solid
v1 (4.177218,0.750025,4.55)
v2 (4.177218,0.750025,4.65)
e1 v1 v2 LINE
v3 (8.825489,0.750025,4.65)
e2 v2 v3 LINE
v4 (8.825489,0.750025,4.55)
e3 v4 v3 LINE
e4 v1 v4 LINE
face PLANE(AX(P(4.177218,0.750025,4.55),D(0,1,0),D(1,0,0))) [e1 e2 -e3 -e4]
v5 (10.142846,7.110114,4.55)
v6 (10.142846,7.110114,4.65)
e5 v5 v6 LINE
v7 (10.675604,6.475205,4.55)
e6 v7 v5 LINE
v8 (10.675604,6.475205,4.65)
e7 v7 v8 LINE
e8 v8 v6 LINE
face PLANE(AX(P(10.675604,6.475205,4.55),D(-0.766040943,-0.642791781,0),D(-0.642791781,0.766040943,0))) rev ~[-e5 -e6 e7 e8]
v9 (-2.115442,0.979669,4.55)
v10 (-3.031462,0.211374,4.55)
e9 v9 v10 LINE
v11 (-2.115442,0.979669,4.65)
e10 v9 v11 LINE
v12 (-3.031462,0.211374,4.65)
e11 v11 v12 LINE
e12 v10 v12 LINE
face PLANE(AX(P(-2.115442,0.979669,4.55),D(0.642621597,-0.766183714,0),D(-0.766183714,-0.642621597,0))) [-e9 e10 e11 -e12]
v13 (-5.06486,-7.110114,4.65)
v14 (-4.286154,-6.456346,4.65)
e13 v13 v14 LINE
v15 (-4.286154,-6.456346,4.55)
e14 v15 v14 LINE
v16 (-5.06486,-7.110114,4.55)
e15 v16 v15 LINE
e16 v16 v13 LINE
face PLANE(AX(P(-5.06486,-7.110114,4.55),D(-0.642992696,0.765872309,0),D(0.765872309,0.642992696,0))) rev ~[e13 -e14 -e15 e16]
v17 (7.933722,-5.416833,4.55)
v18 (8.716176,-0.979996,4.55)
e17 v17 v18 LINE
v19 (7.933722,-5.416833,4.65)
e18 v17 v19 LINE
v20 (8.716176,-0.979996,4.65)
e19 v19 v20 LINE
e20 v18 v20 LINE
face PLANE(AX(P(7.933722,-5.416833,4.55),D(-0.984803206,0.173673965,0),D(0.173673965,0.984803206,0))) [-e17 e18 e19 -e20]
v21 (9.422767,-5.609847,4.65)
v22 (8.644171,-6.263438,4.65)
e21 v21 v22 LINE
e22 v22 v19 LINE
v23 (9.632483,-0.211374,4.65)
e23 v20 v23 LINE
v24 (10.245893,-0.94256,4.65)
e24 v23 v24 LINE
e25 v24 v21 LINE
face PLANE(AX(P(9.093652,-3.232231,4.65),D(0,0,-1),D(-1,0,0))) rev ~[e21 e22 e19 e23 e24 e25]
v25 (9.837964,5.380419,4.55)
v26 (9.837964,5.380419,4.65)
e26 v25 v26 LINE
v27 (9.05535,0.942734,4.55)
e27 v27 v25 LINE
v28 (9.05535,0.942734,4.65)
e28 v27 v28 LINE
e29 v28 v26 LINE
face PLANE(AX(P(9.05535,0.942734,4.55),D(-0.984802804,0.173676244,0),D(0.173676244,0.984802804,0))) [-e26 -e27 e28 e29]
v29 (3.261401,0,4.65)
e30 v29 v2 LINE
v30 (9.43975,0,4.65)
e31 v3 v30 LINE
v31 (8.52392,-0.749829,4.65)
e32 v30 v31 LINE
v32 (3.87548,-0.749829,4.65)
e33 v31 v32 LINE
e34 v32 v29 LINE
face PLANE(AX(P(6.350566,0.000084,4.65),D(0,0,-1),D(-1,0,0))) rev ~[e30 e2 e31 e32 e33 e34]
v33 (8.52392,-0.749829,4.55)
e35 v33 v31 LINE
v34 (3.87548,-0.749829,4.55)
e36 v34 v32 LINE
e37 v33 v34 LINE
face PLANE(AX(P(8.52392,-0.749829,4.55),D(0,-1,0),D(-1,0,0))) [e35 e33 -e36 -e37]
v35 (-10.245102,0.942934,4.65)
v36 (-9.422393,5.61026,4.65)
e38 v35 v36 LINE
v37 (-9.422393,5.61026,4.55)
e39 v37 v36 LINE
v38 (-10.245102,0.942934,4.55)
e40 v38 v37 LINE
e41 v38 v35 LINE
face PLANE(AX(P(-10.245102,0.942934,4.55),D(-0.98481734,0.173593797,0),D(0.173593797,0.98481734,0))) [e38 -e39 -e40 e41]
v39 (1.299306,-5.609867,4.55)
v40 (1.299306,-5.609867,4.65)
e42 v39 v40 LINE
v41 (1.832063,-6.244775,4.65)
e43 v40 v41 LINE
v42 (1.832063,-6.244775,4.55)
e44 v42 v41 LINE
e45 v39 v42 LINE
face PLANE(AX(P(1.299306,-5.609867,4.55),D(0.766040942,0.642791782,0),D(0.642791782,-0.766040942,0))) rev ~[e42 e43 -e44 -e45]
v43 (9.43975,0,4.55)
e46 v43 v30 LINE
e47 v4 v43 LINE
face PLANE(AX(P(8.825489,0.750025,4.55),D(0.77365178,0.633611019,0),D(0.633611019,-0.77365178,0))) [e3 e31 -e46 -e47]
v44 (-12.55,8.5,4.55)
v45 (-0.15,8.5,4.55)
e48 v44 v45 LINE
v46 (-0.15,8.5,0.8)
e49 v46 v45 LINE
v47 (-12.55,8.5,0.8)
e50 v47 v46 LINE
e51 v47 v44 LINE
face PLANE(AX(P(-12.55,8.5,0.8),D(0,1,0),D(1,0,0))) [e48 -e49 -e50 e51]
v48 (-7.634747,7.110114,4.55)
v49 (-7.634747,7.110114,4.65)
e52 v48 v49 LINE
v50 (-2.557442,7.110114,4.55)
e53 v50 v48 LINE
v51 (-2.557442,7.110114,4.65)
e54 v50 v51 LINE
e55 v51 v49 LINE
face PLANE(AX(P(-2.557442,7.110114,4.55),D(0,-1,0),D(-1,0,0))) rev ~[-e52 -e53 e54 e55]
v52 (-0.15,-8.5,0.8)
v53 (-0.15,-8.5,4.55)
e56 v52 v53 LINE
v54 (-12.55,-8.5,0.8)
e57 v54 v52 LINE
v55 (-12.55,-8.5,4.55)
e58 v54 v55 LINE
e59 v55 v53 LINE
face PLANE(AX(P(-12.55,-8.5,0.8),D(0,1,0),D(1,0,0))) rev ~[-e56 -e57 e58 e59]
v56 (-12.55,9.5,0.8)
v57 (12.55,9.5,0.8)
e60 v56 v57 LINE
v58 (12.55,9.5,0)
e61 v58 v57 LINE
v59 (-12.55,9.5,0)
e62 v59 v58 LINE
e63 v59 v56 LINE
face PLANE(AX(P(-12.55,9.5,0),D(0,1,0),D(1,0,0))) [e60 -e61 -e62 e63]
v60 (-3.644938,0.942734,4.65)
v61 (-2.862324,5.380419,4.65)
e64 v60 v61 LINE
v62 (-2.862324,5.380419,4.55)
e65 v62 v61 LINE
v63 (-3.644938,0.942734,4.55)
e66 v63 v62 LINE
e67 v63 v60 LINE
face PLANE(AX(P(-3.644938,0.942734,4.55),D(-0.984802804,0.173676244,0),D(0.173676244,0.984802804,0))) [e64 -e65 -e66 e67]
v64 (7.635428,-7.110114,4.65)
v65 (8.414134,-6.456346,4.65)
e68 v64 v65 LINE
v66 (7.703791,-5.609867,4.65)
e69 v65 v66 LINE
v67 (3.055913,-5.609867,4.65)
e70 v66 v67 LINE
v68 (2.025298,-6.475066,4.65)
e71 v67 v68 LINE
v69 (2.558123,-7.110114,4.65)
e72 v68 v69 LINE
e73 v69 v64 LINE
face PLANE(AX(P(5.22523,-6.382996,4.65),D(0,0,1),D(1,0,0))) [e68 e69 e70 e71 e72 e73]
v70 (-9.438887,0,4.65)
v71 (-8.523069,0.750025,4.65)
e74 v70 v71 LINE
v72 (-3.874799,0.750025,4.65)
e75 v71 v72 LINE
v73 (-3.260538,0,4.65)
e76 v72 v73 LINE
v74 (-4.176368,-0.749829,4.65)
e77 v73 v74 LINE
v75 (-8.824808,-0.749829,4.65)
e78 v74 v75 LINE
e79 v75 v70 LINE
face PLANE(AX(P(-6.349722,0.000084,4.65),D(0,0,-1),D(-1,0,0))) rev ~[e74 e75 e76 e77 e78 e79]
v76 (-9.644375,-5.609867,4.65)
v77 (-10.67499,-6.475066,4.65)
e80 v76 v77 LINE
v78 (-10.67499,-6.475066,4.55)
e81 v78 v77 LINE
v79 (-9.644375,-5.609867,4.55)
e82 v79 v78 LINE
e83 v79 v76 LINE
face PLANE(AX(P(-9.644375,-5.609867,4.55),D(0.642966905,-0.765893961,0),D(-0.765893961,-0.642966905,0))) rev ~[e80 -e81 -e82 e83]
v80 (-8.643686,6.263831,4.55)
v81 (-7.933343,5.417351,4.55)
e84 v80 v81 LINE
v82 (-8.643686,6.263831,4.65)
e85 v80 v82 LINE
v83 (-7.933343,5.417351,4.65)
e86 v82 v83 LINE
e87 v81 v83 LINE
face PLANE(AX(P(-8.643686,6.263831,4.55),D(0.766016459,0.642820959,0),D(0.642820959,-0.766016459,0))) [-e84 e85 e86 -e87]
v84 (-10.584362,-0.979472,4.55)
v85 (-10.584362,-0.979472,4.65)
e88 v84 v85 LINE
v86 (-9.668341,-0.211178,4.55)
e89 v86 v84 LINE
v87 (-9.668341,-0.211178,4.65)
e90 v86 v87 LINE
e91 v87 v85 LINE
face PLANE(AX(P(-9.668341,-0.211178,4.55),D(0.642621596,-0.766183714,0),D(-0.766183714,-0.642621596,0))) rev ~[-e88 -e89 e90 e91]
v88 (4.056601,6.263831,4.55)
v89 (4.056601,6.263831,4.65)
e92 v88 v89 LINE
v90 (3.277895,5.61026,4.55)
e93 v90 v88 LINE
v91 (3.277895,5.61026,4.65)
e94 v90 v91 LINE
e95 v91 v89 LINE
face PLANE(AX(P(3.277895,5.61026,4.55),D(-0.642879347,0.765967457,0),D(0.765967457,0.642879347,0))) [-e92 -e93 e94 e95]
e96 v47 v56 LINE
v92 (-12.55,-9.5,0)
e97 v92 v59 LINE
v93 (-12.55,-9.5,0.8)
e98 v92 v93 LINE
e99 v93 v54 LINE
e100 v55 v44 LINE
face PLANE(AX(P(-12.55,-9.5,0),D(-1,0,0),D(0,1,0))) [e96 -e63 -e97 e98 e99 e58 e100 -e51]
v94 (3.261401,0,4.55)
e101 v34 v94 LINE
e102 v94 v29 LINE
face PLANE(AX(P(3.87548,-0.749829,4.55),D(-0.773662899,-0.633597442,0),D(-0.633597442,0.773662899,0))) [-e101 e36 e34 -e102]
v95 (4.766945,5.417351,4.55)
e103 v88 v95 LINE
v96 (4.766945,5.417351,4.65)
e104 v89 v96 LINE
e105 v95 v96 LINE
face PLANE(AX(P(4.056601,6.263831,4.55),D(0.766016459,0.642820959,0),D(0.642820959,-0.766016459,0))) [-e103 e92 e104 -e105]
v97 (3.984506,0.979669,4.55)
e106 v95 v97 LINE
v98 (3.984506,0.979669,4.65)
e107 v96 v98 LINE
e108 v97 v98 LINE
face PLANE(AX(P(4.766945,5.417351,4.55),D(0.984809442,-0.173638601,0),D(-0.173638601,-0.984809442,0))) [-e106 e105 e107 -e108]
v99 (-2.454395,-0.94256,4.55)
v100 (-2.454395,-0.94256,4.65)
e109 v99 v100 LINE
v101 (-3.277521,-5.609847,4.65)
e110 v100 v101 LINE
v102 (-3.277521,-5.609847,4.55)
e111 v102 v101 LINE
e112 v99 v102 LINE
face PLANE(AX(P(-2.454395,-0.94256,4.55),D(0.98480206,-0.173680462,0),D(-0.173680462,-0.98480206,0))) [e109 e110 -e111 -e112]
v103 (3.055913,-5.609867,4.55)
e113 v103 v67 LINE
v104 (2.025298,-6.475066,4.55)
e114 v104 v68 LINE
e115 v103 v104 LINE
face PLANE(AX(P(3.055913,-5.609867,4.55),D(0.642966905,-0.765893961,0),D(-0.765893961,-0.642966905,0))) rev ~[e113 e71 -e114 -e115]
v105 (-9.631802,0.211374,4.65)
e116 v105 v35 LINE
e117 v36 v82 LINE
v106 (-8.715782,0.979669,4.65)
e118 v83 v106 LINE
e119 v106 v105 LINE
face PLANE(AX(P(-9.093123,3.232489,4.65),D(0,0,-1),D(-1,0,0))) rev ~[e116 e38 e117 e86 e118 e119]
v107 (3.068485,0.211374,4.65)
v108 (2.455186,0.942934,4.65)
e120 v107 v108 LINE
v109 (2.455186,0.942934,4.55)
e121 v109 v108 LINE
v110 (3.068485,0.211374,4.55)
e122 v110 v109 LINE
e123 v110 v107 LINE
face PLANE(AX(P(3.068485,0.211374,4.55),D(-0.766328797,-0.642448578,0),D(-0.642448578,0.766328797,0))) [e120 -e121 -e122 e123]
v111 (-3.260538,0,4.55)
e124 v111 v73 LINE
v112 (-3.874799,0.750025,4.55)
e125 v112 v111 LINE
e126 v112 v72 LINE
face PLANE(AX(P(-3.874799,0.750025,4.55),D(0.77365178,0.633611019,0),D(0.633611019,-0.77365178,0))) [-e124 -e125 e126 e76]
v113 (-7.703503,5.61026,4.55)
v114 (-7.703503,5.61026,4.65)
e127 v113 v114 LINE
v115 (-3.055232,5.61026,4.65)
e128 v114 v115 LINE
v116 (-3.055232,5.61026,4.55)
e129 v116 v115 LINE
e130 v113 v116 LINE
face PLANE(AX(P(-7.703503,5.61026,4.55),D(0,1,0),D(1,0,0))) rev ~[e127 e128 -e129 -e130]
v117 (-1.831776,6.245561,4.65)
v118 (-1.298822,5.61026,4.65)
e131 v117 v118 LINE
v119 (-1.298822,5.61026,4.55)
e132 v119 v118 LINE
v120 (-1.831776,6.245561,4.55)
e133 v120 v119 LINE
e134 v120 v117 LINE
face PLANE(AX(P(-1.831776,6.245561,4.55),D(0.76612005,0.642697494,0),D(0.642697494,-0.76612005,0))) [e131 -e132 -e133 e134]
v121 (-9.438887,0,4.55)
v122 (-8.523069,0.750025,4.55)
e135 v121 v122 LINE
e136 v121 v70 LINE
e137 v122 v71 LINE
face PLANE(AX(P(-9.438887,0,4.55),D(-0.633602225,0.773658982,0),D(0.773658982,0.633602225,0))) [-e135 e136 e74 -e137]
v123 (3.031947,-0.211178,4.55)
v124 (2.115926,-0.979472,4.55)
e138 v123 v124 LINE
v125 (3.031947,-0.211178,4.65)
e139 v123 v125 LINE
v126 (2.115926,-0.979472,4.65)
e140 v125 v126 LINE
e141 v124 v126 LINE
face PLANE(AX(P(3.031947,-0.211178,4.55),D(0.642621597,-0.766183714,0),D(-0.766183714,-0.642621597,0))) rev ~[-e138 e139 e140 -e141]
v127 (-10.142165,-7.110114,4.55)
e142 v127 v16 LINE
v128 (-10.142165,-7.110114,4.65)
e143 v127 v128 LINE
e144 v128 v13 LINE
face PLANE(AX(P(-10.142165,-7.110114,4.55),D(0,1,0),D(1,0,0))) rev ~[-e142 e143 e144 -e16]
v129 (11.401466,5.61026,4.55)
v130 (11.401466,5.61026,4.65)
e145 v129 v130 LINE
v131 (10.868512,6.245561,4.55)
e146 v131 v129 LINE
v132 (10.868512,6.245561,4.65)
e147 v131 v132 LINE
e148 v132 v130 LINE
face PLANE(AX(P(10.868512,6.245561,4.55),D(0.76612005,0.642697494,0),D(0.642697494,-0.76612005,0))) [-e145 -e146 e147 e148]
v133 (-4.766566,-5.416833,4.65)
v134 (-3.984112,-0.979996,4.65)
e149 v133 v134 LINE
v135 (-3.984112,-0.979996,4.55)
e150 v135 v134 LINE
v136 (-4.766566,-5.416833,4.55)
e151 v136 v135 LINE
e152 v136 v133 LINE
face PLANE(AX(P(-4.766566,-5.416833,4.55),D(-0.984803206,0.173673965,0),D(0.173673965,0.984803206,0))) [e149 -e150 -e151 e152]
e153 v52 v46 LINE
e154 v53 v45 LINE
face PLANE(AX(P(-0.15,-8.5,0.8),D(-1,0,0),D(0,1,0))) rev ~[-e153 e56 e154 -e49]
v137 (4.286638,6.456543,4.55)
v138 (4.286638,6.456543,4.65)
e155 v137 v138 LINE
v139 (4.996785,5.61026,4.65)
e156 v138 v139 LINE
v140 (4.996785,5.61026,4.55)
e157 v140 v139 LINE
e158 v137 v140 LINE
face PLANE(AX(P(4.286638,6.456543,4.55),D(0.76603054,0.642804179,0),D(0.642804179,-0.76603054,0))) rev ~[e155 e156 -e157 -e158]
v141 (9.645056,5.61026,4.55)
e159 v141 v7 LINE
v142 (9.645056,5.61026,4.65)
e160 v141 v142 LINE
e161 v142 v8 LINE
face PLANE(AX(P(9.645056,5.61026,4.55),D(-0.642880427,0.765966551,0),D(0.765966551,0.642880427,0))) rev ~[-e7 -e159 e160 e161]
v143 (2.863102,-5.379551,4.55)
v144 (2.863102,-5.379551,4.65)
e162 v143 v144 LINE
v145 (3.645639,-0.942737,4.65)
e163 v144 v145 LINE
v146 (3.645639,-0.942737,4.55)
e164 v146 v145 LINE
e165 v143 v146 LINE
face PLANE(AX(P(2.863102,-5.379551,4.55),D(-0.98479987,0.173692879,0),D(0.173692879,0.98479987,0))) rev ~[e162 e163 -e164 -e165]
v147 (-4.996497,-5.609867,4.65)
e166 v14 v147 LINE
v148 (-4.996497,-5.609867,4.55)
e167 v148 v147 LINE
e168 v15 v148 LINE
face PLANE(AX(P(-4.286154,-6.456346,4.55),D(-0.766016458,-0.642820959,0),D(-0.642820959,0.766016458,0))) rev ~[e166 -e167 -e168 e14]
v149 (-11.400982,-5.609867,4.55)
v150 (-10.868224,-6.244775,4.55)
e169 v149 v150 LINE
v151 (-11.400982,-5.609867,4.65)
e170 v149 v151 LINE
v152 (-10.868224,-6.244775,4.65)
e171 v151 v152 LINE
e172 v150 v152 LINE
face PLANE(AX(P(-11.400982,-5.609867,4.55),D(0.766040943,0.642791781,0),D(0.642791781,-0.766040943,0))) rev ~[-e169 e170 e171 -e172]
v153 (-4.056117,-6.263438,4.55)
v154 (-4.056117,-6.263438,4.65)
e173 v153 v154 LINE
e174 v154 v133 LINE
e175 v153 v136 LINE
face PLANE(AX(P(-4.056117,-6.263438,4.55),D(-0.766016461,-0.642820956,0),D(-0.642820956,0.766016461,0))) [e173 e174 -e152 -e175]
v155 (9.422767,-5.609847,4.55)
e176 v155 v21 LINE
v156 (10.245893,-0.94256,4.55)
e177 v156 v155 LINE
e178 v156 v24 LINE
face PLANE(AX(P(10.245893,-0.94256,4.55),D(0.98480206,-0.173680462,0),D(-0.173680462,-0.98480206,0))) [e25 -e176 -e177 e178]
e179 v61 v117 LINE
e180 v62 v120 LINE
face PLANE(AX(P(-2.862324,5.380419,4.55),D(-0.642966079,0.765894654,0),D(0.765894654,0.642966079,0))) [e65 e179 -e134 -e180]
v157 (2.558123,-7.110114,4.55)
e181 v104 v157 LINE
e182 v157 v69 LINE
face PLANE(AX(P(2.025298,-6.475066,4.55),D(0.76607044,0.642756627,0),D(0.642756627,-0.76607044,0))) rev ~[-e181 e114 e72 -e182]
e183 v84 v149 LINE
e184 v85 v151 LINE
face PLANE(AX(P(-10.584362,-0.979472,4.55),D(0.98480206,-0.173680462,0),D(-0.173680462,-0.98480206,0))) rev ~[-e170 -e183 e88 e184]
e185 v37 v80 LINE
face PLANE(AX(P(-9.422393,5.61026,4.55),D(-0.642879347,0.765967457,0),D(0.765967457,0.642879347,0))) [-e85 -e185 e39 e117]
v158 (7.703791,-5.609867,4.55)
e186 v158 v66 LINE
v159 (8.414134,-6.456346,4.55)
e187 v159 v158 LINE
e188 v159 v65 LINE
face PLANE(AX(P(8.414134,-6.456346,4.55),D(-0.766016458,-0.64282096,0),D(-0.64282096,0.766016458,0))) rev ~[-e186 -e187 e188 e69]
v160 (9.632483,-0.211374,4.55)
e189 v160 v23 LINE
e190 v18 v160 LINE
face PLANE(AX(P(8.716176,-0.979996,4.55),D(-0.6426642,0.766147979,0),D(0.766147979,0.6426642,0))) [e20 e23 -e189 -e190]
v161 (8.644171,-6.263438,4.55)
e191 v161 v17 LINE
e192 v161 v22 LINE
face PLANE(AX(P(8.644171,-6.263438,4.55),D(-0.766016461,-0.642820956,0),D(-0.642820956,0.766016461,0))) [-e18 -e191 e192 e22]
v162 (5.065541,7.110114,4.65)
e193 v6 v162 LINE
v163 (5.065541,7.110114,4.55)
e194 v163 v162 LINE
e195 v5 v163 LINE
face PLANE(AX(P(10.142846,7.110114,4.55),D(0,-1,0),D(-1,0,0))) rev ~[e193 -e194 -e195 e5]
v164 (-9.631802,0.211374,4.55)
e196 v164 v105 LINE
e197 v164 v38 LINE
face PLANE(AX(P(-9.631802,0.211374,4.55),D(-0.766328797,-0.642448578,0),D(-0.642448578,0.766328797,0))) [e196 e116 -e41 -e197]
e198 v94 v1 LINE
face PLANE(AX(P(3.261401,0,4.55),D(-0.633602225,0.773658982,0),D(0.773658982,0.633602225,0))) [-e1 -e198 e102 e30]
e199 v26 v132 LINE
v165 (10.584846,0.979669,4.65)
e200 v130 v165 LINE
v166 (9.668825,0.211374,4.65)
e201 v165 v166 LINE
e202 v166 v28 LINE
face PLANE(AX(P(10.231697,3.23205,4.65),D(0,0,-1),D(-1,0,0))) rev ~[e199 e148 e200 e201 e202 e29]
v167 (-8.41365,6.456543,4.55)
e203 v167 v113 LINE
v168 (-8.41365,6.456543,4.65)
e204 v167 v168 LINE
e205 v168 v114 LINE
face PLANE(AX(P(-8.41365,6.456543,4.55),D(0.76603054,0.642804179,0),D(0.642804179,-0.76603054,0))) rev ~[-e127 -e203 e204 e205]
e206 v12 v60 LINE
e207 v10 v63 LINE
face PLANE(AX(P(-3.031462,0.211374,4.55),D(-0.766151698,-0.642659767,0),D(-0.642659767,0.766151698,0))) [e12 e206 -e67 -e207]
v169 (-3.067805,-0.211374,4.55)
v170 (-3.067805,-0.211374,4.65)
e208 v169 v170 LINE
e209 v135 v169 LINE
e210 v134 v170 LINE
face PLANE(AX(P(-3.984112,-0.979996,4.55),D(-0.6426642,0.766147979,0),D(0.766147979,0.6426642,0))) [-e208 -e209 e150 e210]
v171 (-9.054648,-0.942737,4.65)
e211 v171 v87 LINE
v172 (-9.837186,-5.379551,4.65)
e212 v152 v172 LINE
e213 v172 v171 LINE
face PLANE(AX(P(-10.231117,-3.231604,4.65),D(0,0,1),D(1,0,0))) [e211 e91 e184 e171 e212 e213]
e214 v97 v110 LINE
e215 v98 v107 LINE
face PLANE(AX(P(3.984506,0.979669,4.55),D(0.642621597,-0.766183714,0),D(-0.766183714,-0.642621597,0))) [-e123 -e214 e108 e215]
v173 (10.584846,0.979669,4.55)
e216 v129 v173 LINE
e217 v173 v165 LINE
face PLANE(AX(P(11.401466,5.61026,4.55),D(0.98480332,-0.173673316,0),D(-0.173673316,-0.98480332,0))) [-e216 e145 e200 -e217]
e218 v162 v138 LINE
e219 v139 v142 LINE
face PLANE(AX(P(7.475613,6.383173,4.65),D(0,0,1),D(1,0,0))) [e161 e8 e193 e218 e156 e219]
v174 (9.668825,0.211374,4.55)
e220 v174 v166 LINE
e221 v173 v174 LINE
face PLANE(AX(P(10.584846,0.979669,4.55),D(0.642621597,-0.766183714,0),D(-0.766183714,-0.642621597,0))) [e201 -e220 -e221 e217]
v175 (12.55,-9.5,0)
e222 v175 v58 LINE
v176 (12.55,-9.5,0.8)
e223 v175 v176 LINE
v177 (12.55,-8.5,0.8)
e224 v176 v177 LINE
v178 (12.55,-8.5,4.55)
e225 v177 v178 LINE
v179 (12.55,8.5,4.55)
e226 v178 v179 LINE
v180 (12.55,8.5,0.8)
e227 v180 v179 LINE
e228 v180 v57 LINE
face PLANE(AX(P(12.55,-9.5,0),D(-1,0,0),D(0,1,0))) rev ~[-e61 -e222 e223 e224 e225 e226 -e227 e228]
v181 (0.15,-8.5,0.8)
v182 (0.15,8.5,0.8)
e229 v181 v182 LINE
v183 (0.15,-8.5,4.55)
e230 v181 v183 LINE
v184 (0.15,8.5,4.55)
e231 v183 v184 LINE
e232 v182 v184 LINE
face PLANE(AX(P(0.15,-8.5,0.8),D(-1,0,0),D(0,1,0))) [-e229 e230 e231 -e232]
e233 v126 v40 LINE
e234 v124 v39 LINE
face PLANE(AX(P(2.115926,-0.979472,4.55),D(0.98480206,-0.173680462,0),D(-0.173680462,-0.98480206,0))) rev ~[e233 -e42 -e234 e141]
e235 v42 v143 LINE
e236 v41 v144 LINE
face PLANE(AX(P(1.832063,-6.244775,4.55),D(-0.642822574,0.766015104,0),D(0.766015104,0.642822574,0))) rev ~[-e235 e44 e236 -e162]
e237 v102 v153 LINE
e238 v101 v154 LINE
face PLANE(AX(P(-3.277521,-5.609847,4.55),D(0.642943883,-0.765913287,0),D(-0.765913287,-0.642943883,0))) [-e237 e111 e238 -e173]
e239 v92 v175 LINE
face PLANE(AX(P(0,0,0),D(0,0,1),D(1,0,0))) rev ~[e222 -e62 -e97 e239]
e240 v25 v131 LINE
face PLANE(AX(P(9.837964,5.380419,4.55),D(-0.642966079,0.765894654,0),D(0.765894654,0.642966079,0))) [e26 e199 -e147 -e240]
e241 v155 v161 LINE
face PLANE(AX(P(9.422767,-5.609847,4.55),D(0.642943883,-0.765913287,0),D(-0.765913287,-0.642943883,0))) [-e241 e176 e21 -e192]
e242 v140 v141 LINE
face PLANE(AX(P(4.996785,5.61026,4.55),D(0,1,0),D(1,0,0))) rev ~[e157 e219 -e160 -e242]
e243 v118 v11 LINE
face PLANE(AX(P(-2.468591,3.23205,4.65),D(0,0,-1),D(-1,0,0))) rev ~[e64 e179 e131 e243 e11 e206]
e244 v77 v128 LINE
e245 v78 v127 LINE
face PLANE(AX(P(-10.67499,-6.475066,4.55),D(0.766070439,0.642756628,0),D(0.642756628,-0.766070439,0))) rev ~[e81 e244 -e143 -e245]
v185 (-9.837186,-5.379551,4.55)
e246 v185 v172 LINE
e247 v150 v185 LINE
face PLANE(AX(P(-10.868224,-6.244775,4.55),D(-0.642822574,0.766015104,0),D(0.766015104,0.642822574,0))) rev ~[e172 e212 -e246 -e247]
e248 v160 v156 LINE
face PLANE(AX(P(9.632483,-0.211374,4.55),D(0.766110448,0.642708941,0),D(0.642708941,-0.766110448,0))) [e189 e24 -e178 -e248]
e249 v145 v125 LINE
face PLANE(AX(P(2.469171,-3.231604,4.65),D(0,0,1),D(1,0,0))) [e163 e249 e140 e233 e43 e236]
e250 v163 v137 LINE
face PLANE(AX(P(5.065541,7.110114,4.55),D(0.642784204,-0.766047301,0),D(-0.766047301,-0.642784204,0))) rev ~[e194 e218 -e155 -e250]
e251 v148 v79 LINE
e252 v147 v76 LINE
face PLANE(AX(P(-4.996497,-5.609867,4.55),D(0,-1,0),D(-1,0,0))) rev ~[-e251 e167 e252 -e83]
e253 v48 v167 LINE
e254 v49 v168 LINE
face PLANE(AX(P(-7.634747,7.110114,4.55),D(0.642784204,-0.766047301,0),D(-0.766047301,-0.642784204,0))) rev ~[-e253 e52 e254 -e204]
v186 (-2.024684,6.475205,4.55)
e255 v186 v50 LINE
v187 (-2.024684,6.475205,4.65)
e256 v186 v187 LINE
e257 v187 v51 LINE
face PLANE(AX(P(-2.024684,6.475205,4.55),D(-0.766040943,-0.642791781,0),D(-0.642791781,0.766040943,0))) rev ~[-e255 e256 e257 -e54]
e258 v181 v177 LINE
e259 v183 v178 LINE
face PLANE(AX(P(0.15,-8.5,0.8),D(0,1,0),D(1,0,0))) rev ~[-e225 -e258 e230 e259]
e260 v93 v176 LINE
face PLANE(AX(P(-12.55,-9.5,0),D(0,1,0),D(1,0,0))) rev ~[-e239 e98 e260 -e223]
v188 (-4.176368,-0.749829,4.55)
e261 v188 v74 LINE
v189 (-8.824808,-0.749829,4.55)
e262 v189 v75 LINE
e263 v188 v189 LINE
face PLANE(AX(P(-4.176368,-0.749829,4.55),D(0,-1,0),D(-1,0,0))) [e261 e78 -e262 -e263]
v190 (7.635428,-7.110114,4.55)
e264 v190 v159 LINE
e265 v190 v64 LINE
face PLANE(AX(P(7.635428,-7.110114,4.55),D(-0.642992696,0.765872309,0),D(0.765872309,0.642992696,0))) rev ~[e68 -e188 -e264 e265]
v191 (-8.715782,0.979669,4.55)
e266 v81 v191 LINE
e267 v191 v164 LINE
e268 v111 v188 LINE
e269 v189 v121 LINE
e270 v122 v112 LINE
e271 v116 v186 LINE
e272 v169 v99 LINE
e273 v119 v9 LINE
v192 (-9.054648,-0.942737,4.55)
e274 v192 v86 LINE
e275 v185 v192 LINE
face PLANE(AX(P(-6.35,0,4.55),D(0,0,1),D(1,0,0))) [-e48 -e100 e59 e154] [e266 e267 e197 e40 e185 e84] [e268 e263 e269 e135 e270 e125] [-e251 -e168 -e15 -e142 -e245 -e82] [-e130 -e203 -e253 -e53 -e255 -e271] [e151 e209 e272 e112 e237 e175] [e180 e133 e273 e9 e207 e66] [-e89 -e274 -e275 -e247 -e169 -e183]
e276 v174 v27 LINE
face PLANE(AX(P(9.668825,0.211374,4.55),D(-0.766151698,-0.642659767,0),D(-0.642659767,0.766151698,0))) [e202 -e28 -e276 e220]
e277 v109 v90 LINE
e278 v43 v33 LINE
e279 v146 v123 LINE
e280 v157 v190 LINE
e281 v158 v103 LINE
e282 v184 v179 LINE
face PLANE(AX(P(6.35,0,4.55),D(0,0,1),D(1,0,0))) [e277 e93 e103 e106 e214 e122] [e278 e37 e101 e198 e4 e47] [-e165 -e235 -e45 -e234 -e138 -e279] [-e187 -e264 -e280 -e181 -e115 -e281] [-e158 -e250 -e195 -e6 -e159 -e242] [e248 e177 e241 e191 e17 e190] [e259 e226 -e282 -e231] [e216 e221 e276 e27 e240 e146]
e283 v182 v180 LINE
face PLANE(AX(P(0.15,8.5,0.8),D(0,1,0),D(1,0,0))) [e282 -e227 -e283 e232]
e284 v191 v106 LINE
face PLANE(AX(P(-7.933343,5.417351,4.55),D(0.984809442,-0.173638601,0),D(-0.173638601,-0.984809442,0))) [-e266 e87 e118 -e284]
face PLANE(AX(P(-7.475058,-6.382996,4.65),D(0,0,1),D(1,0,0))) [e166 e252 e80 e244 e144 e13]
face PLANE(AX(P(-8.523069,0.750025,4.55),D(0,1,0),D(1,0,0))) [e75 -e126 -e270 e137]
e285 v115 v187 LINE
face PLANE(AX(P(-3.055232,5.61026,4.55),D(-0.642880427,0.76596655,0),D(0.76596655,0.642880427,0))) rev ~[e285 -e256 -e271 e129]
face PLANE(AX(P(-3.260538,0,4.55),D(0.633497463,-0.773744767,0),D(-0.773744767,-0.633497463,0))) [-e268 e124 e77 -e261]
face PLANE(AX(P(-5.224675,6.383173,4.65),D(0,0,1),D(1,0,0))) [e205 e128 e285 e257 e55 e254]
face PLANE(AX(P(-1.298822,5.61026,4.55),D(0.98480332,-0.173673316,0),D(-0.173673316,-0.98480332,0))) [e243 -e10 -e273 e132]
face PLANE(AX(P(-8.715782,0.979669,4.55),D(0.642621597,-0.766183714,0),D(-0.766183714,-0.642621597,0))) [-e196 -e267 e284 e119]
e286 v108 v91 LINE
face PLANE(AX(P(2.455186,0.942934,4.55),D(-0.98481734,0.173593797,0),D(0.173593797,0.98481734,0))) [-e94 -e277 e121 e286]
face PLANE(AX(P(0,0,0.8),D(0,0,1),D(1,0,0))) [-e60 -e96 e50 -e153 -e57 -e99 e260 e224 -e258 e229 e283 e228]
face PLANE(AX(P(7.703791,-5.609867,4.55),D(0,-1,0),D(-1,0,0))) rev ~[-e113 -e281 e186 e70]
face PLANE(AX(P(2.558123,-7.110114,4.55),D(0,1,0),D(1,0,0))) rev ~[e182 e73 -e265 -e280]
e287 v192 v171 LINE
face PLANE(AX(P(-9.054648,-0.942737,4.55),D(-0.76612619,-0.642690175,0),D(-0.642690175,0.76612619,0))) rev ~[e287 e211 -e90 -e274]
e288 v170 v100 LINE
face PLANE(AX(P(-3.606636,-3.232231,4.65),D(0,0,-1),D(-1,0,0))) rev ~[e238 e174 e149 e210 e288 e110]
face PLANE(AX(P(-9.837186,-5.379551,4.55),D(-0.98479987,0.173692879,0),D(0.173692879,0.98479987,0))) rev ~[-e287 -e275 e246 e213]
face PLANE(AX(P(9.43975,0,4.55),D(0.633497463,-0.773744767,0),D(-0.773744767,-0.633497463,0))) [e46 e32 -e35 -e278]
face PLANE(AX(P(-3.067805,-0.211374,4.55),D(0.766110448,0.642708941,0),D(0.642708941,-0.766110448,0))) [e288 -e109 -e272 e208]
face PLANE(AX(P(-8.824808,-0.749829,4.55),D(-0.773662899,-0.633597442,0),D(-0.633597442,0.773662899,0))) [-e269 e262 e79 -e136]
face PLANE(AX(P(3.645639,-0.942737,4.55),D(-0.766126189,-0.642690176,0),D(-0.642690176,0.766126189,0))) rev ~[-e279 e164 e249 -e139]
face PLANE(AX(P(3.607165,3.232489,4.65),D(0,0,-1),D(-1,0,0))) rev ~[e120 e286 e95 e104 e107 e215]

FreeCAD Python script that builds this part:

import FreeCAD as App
import Part
import Sketcher

V = App.Vector
Q = App.Units.Quantity

doc = App.newDocument("Part")
body = doc.addObject("PartDesign::Body", "Body")

# Sketch on XY plane
sketch1 = body.newObject("Sketcher::SketchObject", "Sketch")
sketch1.AttachmentSupport = (doc.getObject("XY_Plane"), [""])
sketch1.MapMode = "FlatFace"
sketch1.addGeometry([
    Part.LineSegment(V(-13, 10, 0), V(-13, -10, 0)),
    Part.LineSegment(V(-13, -10, 0), V(13, -10, 0)),
    Part.LineSegment(V(13, -10, 0), V(13, 10, 0)),
    Part.LineSegment(V(13, 10, 0), V(-13, 10, 0)),
], False)
sketch1.addConstraint([
    Sketcher.Constraint("Coincident", 0, 2, 1, 1),
    Sketcher.Constraint("Coincident", 1, 2, 2, 1),
    Sketcher.Constraint("Coincident", 2, 2, 3, 1),
    Sketcher.Constraint("Coincident", 3, 2, 0, 1),
    Sketcher.Constraint("Vertical", 0),
    Sketcher.Constraint("Horizontal", 1),
    Sketcher.Constraint("Vertical", 2),
    Sketcher.Constraint("Horizontal", 3),
    Sketcher.Constraint("Symmetric", 0, 2, 2, 2, -1, 1),
    Sketcher.Constraint("DistanceY", 0, 2, 0, 1, Q("19 mm")),
    Sketcher.Constraint("DistanceX", 1, 1, 1, 2, Q("25.1 mm")),
])
pad1 = body.newObject("PartDesign::Pad", "Pad")
pad1.Profile = sketch1
pad1.Length = 0.8

# Sketch on XY plane
sketch2 = body.newObject("Sketcher::SketchObject", "Sketch001")
sketch2.AttachmentSupport = (doc.getObject("XY_Plane"), [""])
sketch2.MapMode = "FlatFace"
sketch2.AttachmentOffset = App.Placement(V(0, 0, 0.8), App.Rotation())
sketch2.addGeometry([
    Part.LineSegment(V(-13, 8, 0), V(-13, -8, 0)),  # 0
    Part.LineSegment(V(-13, -8, 0), V(0, -8, 0)),  # 1
    Part.LineSegment(V(0, -8, 0), V(0, 8, 0)),  # 2
    Part.LineSegment(V(0, 8, 0), V(-13, 8, 0)),  # 3
    Part.LineSegment(V(0, 8, 0), V(0, -8, 0)),  # 4
    Part.LineSegment(V(0, -8, 0), V(13, -8, 0)),  # 5
    Part.LineSegment(V(13, -8, 0), V(13, 8, 0)),  # 6
    Part.LineSegment(V(13, 8, 0), V(0, 8, 0)),  # 7
], False)
sketch2.addConstraint([
    Sketcher.Constraint("Coincident", 0, 2, 1, 1),
    Sketcher.Constraint("Coincident", 1, 2, 2, 1),
    Sketcher.Constraint("Coincident", 2, 2, 3, 1),
    Sketcher.Constraint("Coincident", 3, 2, 0, 1),
    Sketcher.Constraint("Coincident", 4, 2, 5, 1),
    Sketcher.Constraint("Coincident", 5, 2, 6, 1),
    Sketcher.Constraint("Coincident", 6, 2, 7, 1),
    Sketcher.Constraint("Coincident", 7, 2, 4, 1),
    Sketcher.Constraint("Vertical", 0),
    Sketcher.Constraint("Horizontal", 1),
    Sketcher.Constraint("Vertical", 2),
    Sketcher.Constraint("Horizontal", 3),
    Sketcher.Constraint("Vertical", 4),
    Sketcher.Constraint("Horizontal", 5),
    Sketcher.Constraint("Vertical", 6),
    Sketcher.Constraint("Horizontal", 7),
    Sketcher.Constraint("Symmetric", 2, 2, 4, 2, -1, 1),
    Sketcher.Constraint("Symmetric", 0, 2, 6, 2, -1, 1),
    Sketcher.Constraint("Horizontal", 1, 2, 4, 2),
    Sketcher.Constraint("DistanceY", 0, 2, 0, 1, Q("17 mm")),
    Sketcher.Constraint("DistanceX", 1, 1, 1, 2, Q("12.4 mm")),
    Sketcher.Constraint("DistanceX", 1, 2, 4, 2, Q("0.3 mm")),
])
pad2 = body.newObject("PartDesign::Pad", "Pad001")
pad2.Profile = sketch2
pad2.Length = 3.75

# Sketch on XY plane
sketch3 = body.newObject("Sketcher::SketchObject", "Sketch002")
sketch3.AttachmentSupport = (doc.getObject("XY_Plane"), [""])
sketch3.MapMode = "FlatFace"
sketch3.AttachmentOffset = App.Placement(V(0, 0, 4.55), App.Rotation())
sketch3.addGeometry([
    Part.LineSegment(V(-2, 6.5, 0), V(-2.6, 7.1, 0)),  # 0
    Part.LineSegment(V(-2.6, 7.1, 0), V(-7.6, 7.1, 0)),  # 1
    Part.LineSegment(V(-7.6, 7.1, 0), V(-8.4, 6.5, 0)),  # 2
    Part.LineSegment(V(-8.4, 6.5, 0), V(-7.7, 5.6, 0)),  # 3
    Part.LineSegment(V(-7.7, 5.6, 0), V(-3.1, 5.6, 0)),  # 4
    Part.LineSegment(V(-3.1, 5.6, 0), V(-2, 6.5, 0)),  # 5
    Part.LineSegment(V(-2.1, 1, 0), V(-1.3, 5.6, 0)),  # 6
    Part.LineSegment(V(-1.3, 5.6, 0), V(-1.8, 6.2, 0)),  # 7
    Part.LineSegment(V(-1.8, 6.2, 0), V(-2.9, 5.4, 0)),  # 8
    Part.LineSegment(V(-2.9, 5.4, 0), V(-3.6, 0.9, 0)),  # 9
    Part.LineSegment(V(-3.6, 0.9, 0), V(-3, 0.2, 0)),  # 10
    Part.LineSegment(V(-3, 0.2, 0), V(-2.1, 1, 0)),  # 11
    Part.LineSegment(V(-8.7, 1, 0), V(-7.9, 5.4, 0)),  # 12
    Part.LineSegment(V(-7.9, 5.4, 0), V(-8.6, 6.3, 0)),  # 13
    Part.LineSegment(V(-8.6, 6.3, 0), V(-9.4, 5.6, 0)),  # 14
    Part.LineSegment(V(-9.4, 5.6, 0), V(-10.2, 0.9, 0)),  # 15
    Part.LineSegment(V(-10.2, 0.9, 0), V(-9.6, 0.2, 0)),  # 16
    Part.LineSegment(V(-9.6, 0.2, 0), V(-8.7, 1, 0)),  # 17
    Part.LineSegment(V(-3.9, 0.8, 0), V(-8.5, 0.8, 0)),  # 18
    Part.LineSegment(V(-8.5, 0.8, 0), V(-9.4, 0, 0)),  # 19
    Part.LineSegment(V(-9.4, 0, 0), V(-8.8, -0.7, 0)),  # 20
    Part.LineSegment(V(-8.8, -0.7, 0), V(-4.2, -0.7, 0)),  # 21
    Part.LineSegment(V(-4.2, -0.7, 0), V(-3.3, 0, 0)),  # 22
    Part.LineSegment(V(-3.3, 0, 0), V(-3.9, 0.8, 0)),  # 23
    Part.LineSegment(V(-3.1, -0.2, 0), V(-4, -1, 0)),  # 24
    Part.LineSegment(V(-4, -1, 0), V(-4.8, -5.4, 0)),  # 25
    Part.LineSegment(V(-4.8, -5.4, 0), V(-4.1, -6.3, 0)),  # 26
    Part.LineSegment(V(-4.1, -6.3, 0), V(-3.3, -5.6, 0)),  # 27
    Part.LineSegment(V(-3.3, -5.6, 0), V(-2.5, -0.9, 0)),  # 28
    Part.LineSegment(V(-2.5, -0.9, 0), V(-3.1, -0.2, 0)),  # 29
    Part.LineSegment(V(-9.1, -0.9, 0), V(-9.7, -0.2, 0)),  # 30
    Part.LineSegment(V(-9.7, -0.2, 0), V(-10.6, -1, 0)),  # 31
    Part.LineSegment(V(-10.6, -1, 0), V(-11.4, -5.6, 0)),  # 32
    Part.LineSegment(V(-11.4, -5.6, 0), V(-10.9, -6.2, 0)),  # 33
    Part.LineSegment(V(-10.9, -6.2, 0), V(-9.8, -5.4, 0)),  # 34
    Part.LineSegment(V(-9.8, -5.4, 0), V(-9.1, -0.9, 0)),  # 35
    Part.LineSegment(V(-5, -5.6, 0), V(-9.6, -5.6, 0)),  # 36
    Part.LineSegment(V(-9.6, -5.6, 0), V(-10.7, -6.5, 0)),  # 37
    Part.LineSegment(V(-10.7, -6.5, 0), V(-10.1, -7.1, 0)),  # 38
    Part.LineSegment(V(-10.1, -7.1, 0), V(-5.1, -7.1, 0)),  # 39
    Part.LineSegment(V(-5.1, -7.1, 0), V(-4.3, -6.5, 0)),  # 40
    Part.LineSegment(V(-4.3, -6.5, 0), V(-5, -5.6, 0)),  # 41
    Part.LineSegment(V(10.7, 6.5, 0), V(10.1, 7.1, 0)),  # 42
    Part.LineSegment(V(10.1, 7.1, 0), V(5.1, 7.1, 0)),  # 43
    Part.LineSegment(V(5.1, 7.1, 0), V(4.3, 6.5, 0)),  # 44
    Part.LineSegment(V(4.3, 6.5, 0), V(5, 5.6, 0)),  # 45
    Part.LineSegment(V(5, 5.6, 0), V(9.6, 5.6, 0)),  # 46
    Part.LineSegment(V(9.6, 5.6, 0), V(10.7, 6.5, 0)),  # 47
    Part.LineSegment(V(10.6, 1, 0), V(11.4, 5.6, 0)),  # 48
    Part.LineSegment(V(11.4, 5.6, 0), V(10.9, 6.2, 0)),  # 49
    Part.LineSegment(V(10.9, 6.2, 0), V(9.8, 5.4, 0)),  # 50
    Part.LineSegment(V(9.8, 5.4, 0), V(9.1, 0.9, 0)),  # 51
    Part.LineSegment(V(9.1, 0.9, 0), V(9.7, 0.2, 0)),  # 52
    Part.LineSegment(V(9.7, 0.2, 0), V(10.6, 1, 0)),  # 53
    Part.LineSegment(V(4, 1, 0), V(4.8, 5.4, 0)),  # 54
    Part.LineSegment(V(4.8, 5.4, 0), V(4.1, 6.3, 0)),  # 55
    Part.LineSegment(V(4.1, 6.3, 0), V(3.3, 5.6, 0)),  # 56
    Part.LineSegment(V(3.3, 5.6, 0), V(2.5, 0.9, 0)),  # 57
    Part.LineSegment(V(2.5, 0.9, 0), V(3.1, 0.2, 0)),  # 58
    Part.LineSegment(V(3.1, 0.2, 0), V(4, 1, 0)),  # 59
    Part.LineSegment(V(8.8, 0.8, 0), V(4.2, 0.8, 0)),  # 60
    Part.LineSegment(V(4.2, 0.8, 0), V(3.3, 0, 0)),  # 61
    Part.LineSegment(V(3.3, 0, 0), V(3.9, -0.7, 0)),  # 62
    Part.LineSegment(V(3.9, -0.7, 0), V(8.5, -0.7, 0)),  # 63
    Part.LineSegment(V(8.5, -0.7, 0), V(9.4, 0, 0)),  # 64
    Part.LineSegment(V(9.4, 0, 0), V(8.8, 0.8, 0)),  # 65
    Part.LineSegment(V(9.6, -0.2, 0), V(8.7, -1, 0)),  # 66
    Part.LineSegment(V(8.7, -1, 0), V(7.9, -5.4, 0)),  # 67
    Part.LineSegment(V(7.9, -5.4, 0), V(8.6, -6.3, 0)),  # 68
    Part.LineSegment(V(8.6, -6.3, 0), V(9.4, -5.6, 0)),  # 69
    Part.LineSegment(V(9.4, -5.6, 0), V(10.2, -0.9, 0)),  # 70
    Part.LineSegment(V(10.2, -0.9, 0), V(9.6, -0.2, 0)),  # 71
    Part.LineSegment(V(3.6, -0.9, 0), V(3, -0.2, 0)),  # 72
    Part.LineSegment(V(3, -0.2, 0), V(2.1, -1, 0)),  # 73
    Part.LineSegment(V(2.1, -1, 0), V(1.3, -5.6, 0)),  # 74
    Part.LineSegment(V(1.3, -5.6, 0), V(1.8, -6.2, 0)),  # 75
    Part.LineSegment(V(1.8, -6.2, 0), V(2.9, -5.4, 0)),  # 76
    Part.LineSegment(V(2.9, -5.4, 0), V(3.6, -0.9, 0)),  # 77
    Part.LineSegment(V(7.7, -5.6, 0), V(3.1, -5.6, 0)),  # 78
    Part.LineSegment(V(3.1, -5.6, 0), V(2, -6.5, 0)),  # 79
    Part.LineSegment(V(2, -6.5, 0), V(2.6, -7.1, 0)),  # 80
    Part.LineSegment(V(2.6, -7.1, 0), V(7.6, -7.1, 0)),  # 81
    Part.LineSegment(V(7.6, -7.1, 0), V(8.4, -6.5, 0)),  # 82
    Part.LineSegment(V(8.4, -6.5, 0), V(7.7, -5.6, 0)),  # 83
], False)
sketch3.addConstraint([
    Sketcher.Constraint("Coincident", 0, 2, 1, 1),
    Sketcher.Constraint("Coincident", 1, 2, 2, 1),
    Sketcher.Constraint("Coincident", 2, 2, 3, 1),
    Sketcher.Constraint("Coincident", 3, 2, 4, 1),
    Sketcher.Constraint("Coincident", 4, 2, 5, 1),
    Sketcher.Constraint("Coincident", 5, 2, 0, 1),
    Sketcher.Constraint("Coincident", 6, 2, 7, 1),
    Sketcher.Constraint("Coincident", 7, 2, 8, 1),
    Sketcher.Constraint("Coincident", 8, 2, 9, 1),
    Sketcher.Constraint("Coincident", 9, 2, 10, 1),
    Sketcher.Constraint("Coincident", 10, 2, 11, 1),
    Sketcher.Constraint("Coincident", 11, 2, 6, 1),
    Sketcher.Constraint("Coincident", 12, 2, 13, 1),
    Sketcher.Constraint("Coincident", 13, 2, 14, 1),
    Sketcher.Constraint("Coincident", 14, 2, 15, 1),
    Sketcher.Constraint("Coincident", 15, 2, 16, 1),
    Sketcher.Constraint("Coincident", 16, 2, 17, 1),
    Sketcher.Constraint("Coincident", 17, 2, 12, 1),
    Sketcher.Constraint("Coincident", 18, 2, 19, 1),
    Sketcher.Constraint("Coincident", 19, 2, 20, 1),
    Sketcher.Constraint("Coincident", 20, 2, 21, 1),
    Sketcher.Constraint("Coincident", 21, 2, 22, 1),
    Sketcher.Constraint("Coincident", 22, 2, 23, 1),
    Sketcher.Constraint("Coincident", 23, 2, 18, 1),
    Sketcher.Constraint("Coincident", 24, 2, 25, 1),
    Sketcher.Constraint("Coincident", 25, 2, 26, 1),
    Sketcher.Constraint("Coincident", 26, 2, 27, 1),
    Sketcher.Constraint("Coincident", 27, 2, 28, 1),
    Sketcher.Constraint("Coincident", 28, 2, 29, 1),
    Sketcher.Constraint("Coincident", 29, 2, 24, 1),
    Sketcher.Constraint("Coincident", 30, 2, 31, 1),
    Sketcher.Constraint("Coincident", 31, 2, 32, 1),
    Sketcher.Constraint("Coincident", 32, 2, 33, 1),
    Sketcher.Constraint("Coincident", 33, 2, 34, 1),
    Sketcher.Constraint("Coincident", 34, 2, 35, 1),
    Sketcher.Constraint("Coincident", 35, 2, 30, 1),
    Sketcher.Constraint("Coincident", 36, 2, 37, 1),
    Sketcher.Constraint("Coincident", 37, 2, 38, 1),
    Sketcher.Constraint("Coincident", 38, 2, 39, 1),
    Sketcher.Constraint("Coincident", 39, 2, 40, 1),
    Sketcher.Constraint("Coincident", 40, 2, 41, 1),
    Sketcher.Constraint("Coincident", 41, 2, 36, 1),
    Sketcher.Constraint("Coincident", 42, 2, 43, 1),
    Sketcher.Constraint("Coincident", 43, 2, 44, 1),
    Sketcher.Constraint("Coincident", 44, 2, 45, 1),
    Sketcher.Constraint("Coincident", 45, 2, 46, 1),
    Sketcher.Constraint("Coincident", 46, 2, 47, 1),
    Sketcher.Constraint("Coincident", 47, 2, 42, 1),
    Sketcher.Constraint("Coincident", 48, 2, 49, 1),
    Sketcher.Constraint("Coincident", 49, 2, 50, 1),
    Sketcher.Constraint("Coincident", 50, 2, 51, 1),
    Sketcher.Constraint("Coincident", 51, 2, 52, 1),
    Sketcher.Constraint("Coincident", 52, 2, 53, 1),
    Sketcher.Constraint("Coincident", 53, 2, 48, 1),
    Sketcher.Constraint("Coincident", 54, 2, 55, 1),
    Sketcher.Constraint("Coincident", 55, 2, 56, 1),
    Sketcher.Constraint("Coincident", 56, 2, 57, 1),
    Sketcher.Constraint("Coincident", 57, 2, 58, 1),
    Sketcher.Constraint("Coincident", 58, 2, 59, 1),
    Sketcher.Constraint("Coincident", 59, 2, 54, 1),
    Sketcher.Constraint("Coincident", 60, 2, 61, 1),
    Sketcher.Constraint("Coincident", 61, 2, 62, 1),
    Sketcher.Constraint("Coincident", 62, 2, 63, 1),
    Sketcher.Constraint("Coincident", 63, 2, 64, 1),
    Sketcher.Constraint("Coincident", 64, 2, 65, 1),
    Sketcher.Constraint("Coincident", 65, 2, 60, 1),
    Sketcher.Constraint("Coincident", 66, 2, 67, 1),
    Sketcher.Constraint("Coincident", 67, 2, 68, 1),
    Sketcher.Constraint("Coincident", 68, 2, 69, 1),
    Sketcher.Constraint("Coincident", 69, 2, 70, 1),
    Sketcher.Constraint("Coincident", 70, 2, 71, 1),
    Sketcher.Constraint("Coincident", 71, 2, 66, 1),
    Sketcher.Constraint("Coincident", 72, 2, 73, 1),
    Sketcher.Constraint("Coincident", 73, 2, 74, 1),
    Sketcher.Constraint("Coincident", 74, 2, 75, 1),
    Sketcher.Constraint("Coincident", 75, 2, 76, 1),
    Sketcher.Constraint("Coincident", 76, 2, 77, 1),
    Sketcher.Constraint("Coincident", 77, 2, 72, 1),
    Sketcher.Constraint("Coincident", 78, 2, 79, 1),
    Sketcher.Constraint("Coincident", 79, 2, 80, 1),
    Sketcher.Constraint("Coincident", 80, 2, 81, 1),
    Sketcher.Constraint("Coincident", 81, 2, 82, 1),
    Sketcher.Constraint("Coincident", 82, 2, 83, 1),
    Sketcher.Constraint("Coincident", 83, 2, 78, 1),
    Sketcher.Constraint("Horizontal", 1),
    Sketcher.Constraint("Horizontal", 4),
    Sketcher.Constraint("Horizontal", 18),
    Sketcher.Constraint("Horizontal", 21),
    Sketcher.Constraint("Horizontal", 36),
    Sketcher.Constraint("Horizontal", 39),
    Sketcher.Constraint("Horizontal", 43),
    Sketcher.Constraint("Horizontal", 46),
    Sketcher.Constraint("Horizontal", 60),
    Sketcher.Constraint("Horizontal", 63),
    Sketcher.Constraint("Horizontal", 78),
    Sketcher.Constraint("Horizontal", 81),
    Sketcher.Constraint("PointOnObject", 19, 2, -1),
    Sketcher.Constraint("PointOnObject", 22, 2, -1),
    Sketcher.Constraint("PointOnObject", 61, 2, -1),
    Sketcher.Constraint("PointOnObject", 64, 2, -1),
    Sketcher.Constraint("Parallel", 5, 14),
    Sketcher.Constraint("Parallel", 11, 17),
    Sketcher.Constraint("Parallel", 6, 25),
    Sketcher.Constraint("Parallel", 13, 26),
    Sketcher.Constraint("Parallel", 17, 31),
    Sketcher.Constraint("Parallel", 28, 32),
    Sketcher.Constraint("Parallel", 0, 33),
    Sketcher.Constraint("Parallel", 8, 37),
    Sketcher.Constraint("Parallel", 26, 41),
    Sketcher.Constraint("Parallel", 33, 42),
    Sketcher.Constraint("Parallel", 2, 44),
    Sketcher.Constraint("Parallel", 3, 45),
    Sketcher.Constraint("Parallel", 14, 47),
    Sketcher.Constraint("Parallel", 25, 48),
    Sketcher.Constraint("Parallel", 7, 49),
    Sketcher.Constraint("Parallel", 37, 50),
    Sketcher.Constraint("Parallel", 9, 51),
    Sketcher.Constraint("Parallel", 10, 52),
    Sketcher.Constraint("Parallel", 31, 53),
    Sketcher.Constraint("Parallel", 12, 54),
    Sketcher.Constraint("Parallel", 41, 55),
    Sketcher.Constraint("Parallel", 47, 56),
    Sketcher.Constraint("Parallel", 15, 57),
    Sketcher.Constraint("Parallel", 16, 58),
    Sketcher.Constraint("Parallel", 53, 59),
    Sketcher.Constraint("Parallel", 19, 61),
    Sketcher.Constraint("Parallel", 20, 62),
    Sketcher.Constraint("Parallel", 22, 64),
    Sketcher.Constraint("Parallel", 23, 65),
    Sketcher.Constraint("Parallel", 24, 66),
    Sketcher.Constraint("Parallel", 48, 67),
    Sketcher.Constraint("Parallel", 55, 68),
    Sketcher.Constraint("Parallel", 27, 69),
    Sketcher.Constraint("Parallel", 32, 70),
    Sketcher.Constraint("Parallel", 29, 71),
    Sketcher.Constraint("Parallel", 30, 72),
    Sketcher.Constraint("Parallel", 59, 73),
    Sketcher.Constraint("Parallel", 70, 74),
    Sketcher.Constraint("Parallel", 42, 75),
    Sketcher.Constraint("Parallel", 34, 76),
    Sketcher.Constraint("Parallel", 35, 77),
    Sketcher.Constraint("Parallel", 50, 79),
    Sketcher.Constraint("Parallel", 38, 80),
    Sketcher.Constraint("Parallel", 40, 82),
    Sketcher.Constraint("Parallel", 68, 83),
    Sketcher.Constraint("Horizontal", 4, 2, 6, 2),
    Sketcher.Constraint("Horizontal", 6, 2, 14, 2),
    Sketcher.Constraint("Horizontal", 10, 2, 16, 2),
    Sketcher.Constraint("Horizontal", 11, 2, 17, 2),
    Sketcher.Constraint("Horizontal", 32, 2, 36, 2),
    Sketcher.Constraint("Horizontal", 1, 2, 42, 2),
    Sketcher.Constraint("Horizontal", 2, 2, 44, 2),
    Sketcher.Constraint("Horizontal", 14, 2, 45, 2),
    Sketcher.Constraint("Horizontal", 5, 2, 47, 2),
    Sketcher.Constraint("Horizontal", 46, 2, 48, 2),
    Sketcher.Constraint("Horizontal", 7, 2, 49, 2),
    Sketcher.Constraint("Horizontal", 8, 2, 50, 2),
    Sketcher.Constraint("Horizontal", 9, 2, 51, 2),
    Sketcher.Constraint("Horizontal", 16, 2, 52, 2),
    Sketcher.Constraint("Horizontal", 12, 2, 54, 2),
    Sketcher.Constraint("Horizontal", 13, 2, 55, 2),
    Sketcher.Constraint("Horizontal", 48, 2, 56, 2),
    Sketcher.Constraint("Horizontal", 15, 2, 57, 2),
    Sketcher.Constraint("Horizontal", 52, 2, 58, 2),
    Sketcher.Constraint("Horizontal", 23, 2, 60, 2),
    Sketcher.Constraint("Horizontal", 21, 2, 62, 2),
    Sketcher.Constraint("Horizontal", 24, 2, 66, 2),
    Sketcher.Constraint("Horizontal", 25, 2, 67, 2),
    Sketcher.Constraint("Horizontal", 26, 2, 68, 2),
    Sketcher.Constraint("Horizontal", 27, 2, 69, 2),
    Sketcher.Constraint("Horizontal", 28, 2, 70, 2),
    Sketcher.Constraint("Horizontal", 30, 2, 72, 2),
    Sketcher.Constraint("Horizontal", 31, 2, 73, 2),
    Sketcher.Constraint("Horizontal", 41, 2, 74, 2),
    Sketcher.Constraint("Horizontal", 33, 2, 75, 2),
    Sketcher.Constraint("Horizontal", 34, 2, 76, 2),
    Sketcher.Constraint("Horizontal", 74, 2, 78, 2),
    Sketcher.Constraint("Horizontal", 37, 2, 79, 2),
    Sketcher.Constraint("Horizontal", 39, 2, 80, 2),
    Sketcher.Constraint("Horizontal", 40, 2, 82, 2),
    Sketcher.Constraint("Equal", 4, 18),
    Sketcher.Constraint("Equal", 1, 39),
    Sketcher.Constraint("Equal", 39, 43),
    Sketcher.Constraint("Equal", 46, 60),
    Sketcher.Constraint("Equal", 36, 78),
    Sketcher.Constraint("Equal", 17, 31),
    Sketcher.Constraint("Equal", 0, 33),
    Sketcher.Constraint("Equal", 13, 41),
    Sketcher.Constraint("DistanceX", 4, 1, 4, 2, Q("4.648271 mm")),
    Sketcher.Constraint("DistanceX", 21, 1, 21, 2, Q("4.64844 mm")),
    Sketcher.Constraint("DistanceX", 23, 2, -1, 1, Q("3.874799 mm")),
    Sketcher.Constraint("DistanceX", -1, 1, 55, 2, Q("4.056601 mm")),
    Sketcher.Constraint("DistanceX", -1, 1, 61, 2, Q("3.261401 mm")),
    Sketcher.Constraint("DistanceX", -1, 1, 76, 2, Q("2.863102 mm")),
    Sketcher.Constraint("DistanceX", -1, 1, 79, 2, Q("2.025298 mm")),
    Sketcher.Constraint("Distance", 0, Q("0.828818 mm")),
    Sketcher.Constraint("Distance", 2, Q("1.016781 mm")),
    Sketcher.Constraint("Distance", 5, Q("1.345422 mm")),
    Sketcher.Constraint("Distance", 8, Q("1.345548 mm")),
    Sketcher.Constraint("Distance", 10, Q("0.954588 mm")),
    Sketcher.Constraint("Distance", 13, Q("1.105041 mm")),
    Sketcher.Constraint("Distance", 14, Q("1.016631 mm")),
    Sketcher.Constraint("Distance", 15, Q("4.739281 mm")),
    Sketcher.Constraint("Distance", 16, Q("0.954629 mm")),
    Sketcher.Constraint("Distance", 23, Q("0.969461 mm")),
    Sketcher.Constraint("Distance", 27, Q("1.016559 mm")),
    Sketcher.Constraint("Distance", 30, Q("0.954881 mm")),
    Sketcher.Constraint("DistanceX", 1, 2, 1, 1, Q("5.077306 mm")),
    Sketcher.Constraint("DistanceX", 36, 2, 36, 1, Q("4.647878 mm")),
    Sketcher.Constraint("DistanceX", 0, 2, -1, 1, Q("2.557442 mm")),
    Sketcher.Constraint("DistanceX", 2, 2, -1, 1, Q("8.41365 mm")),
    Sketcher.Constraint("DistanceY", -1, 1, 3, 2, Q("5.61026 mm")),
    Sketcher.Constraint("DistanceX", 6, 2, -1, 1, Q("1.298822 mm")),
    Sketcher.Constraint("DistanceY", -1, 1, 7, 2, Q("6.245561 mm")),
    Sketcher.Constraint("DistanceY", -1, 1, 8, 2, Q("5.380419 mm")),
    Sketcher.Constraint("DistanceX", 11, 2, -1, 1, Q("2.115442 mm")),
    Sketcher.Constraint("DistanceY", -1, 1, 11, 2, Q("0.979669 mm")),
    Sketcher.Constraint("DistanceY", -1, 1, 12, 2, Q("5.417351 mm")),
    Sketcher.Constraint("DistanceY", -1, 1, 13, 2, Q("6.263831 mm")),
    Sketcher.Constraint("DistanceX", 17, 2, -1, 1, Q("8.715782 mm")),
    Sketcher.Constraint("DistanceX", 20, 2, -1, 1, Q("8.824808 mm")),
    Sketcher.Constraint("DistanceY", 20, 2, -1, 1, Q("0.749829 mm")),
    Sketcher.Constraint("DistanceX", 24, 2, -1, 1, Q("3.984112 mm")),
    Sketcher.Constraint("DistanceX", 27, 2, -1, 1, Q("3.277521 mm")),
    Sketcher.Constraint("DistanceY", 28, 2, -1, 1, Q("0.94256 mm")),
    Sketcher.Constraint("DistanceX", 30, 2, -1, 1, Q("9.668341 mm")),
    Sketcher.Constraint("DistanceX", 32, 2, -1, 1, Q("11.400982 mm")),
    Sketcher.Constraint("DistanceY", 34, 2, -1, 1, Q("5.379551 mm")),
    Sketcher.Constraint("DistanceX", 35, 2, -1, 1, Q("9.054648 mm")),
    Sketcher.Constraint("DistanceX", 37, 2, -1, 1, Q("10.67499 mm")),
    Sketcher.Constraint("DistanceX", 39, 2, -1, 1, Q("5.06486 mm")),
    Sketcher.Constraint("DistanceX", -1, 1, 43, 2, Q("5.065541 mm")),
    Sketcher.Constraint("DistanceX", -1, 1, 51, 2, Q("9.05535 mm")),
    Sketcher.Constraint("DistanceX", -1, 1, 60, 2, Q("4.177218 mm")),
    Sketcher.Constraint("DistanceX", -1, 1, 64, 2, Q("9.43975 mm")),
    Sketcher.Constraint("DistanceX", -1, 1, 68, 2, Q("8.644171 mm")),
    Sketcher.Constraint("DistanceX", -1, 1, 77, 2, Q("3.645639 mm")),
    Sketcher.Constraint("DistanceX", -1, 1, 83, 2, Q("7.703791 mm")),
    Sketcher.Constraint("Distance", 7, Q("0.829246 mm")),
    Sketcher.Constraint("Distance", 9, Q("4.506167 mm")),
    Sketcher.Constraint("Distance", 11, Q("1.195563 mm")),
    Sketcher.Constraint("Distance", 12, Q("4.506133 mm")),
    Sketcher.Constraint("Distance", 24, Q("1.195992 mm")),
    Sketcher.Constraint("Distance", 25, Q("4.505303 mm")),
    Sketcher.Constraint("Distance", 26, Q("1.105204 mm")),
    Sketcher.Constraint("Distance", 28, Q("4.739315 mm")),
    Sketcher.Constraint("Distance", 29, Q("0.954413 mm")),
    Sketcher.Constraint("Distance", 32, Q("4.701853 mm")),
    Sketcher.Constraint("Distance", 34, Q("1.345976 mm")),
    Sketcher.Constraint("Distance", 35, Q("4.505295 mm")),
    Sketcher.Constraint("Distance", 38, Q("0.828967 mm")),
    Sketcher.Constraint("DistanceY", -1, 1, 0, 2, Q("7.110114 mm")),
])
pad3 = body.newObject("PartDesign::Pad", "Pad002")
pad3.Profile = sketch3
pad3.Length = 0.1

doc.recompute()
